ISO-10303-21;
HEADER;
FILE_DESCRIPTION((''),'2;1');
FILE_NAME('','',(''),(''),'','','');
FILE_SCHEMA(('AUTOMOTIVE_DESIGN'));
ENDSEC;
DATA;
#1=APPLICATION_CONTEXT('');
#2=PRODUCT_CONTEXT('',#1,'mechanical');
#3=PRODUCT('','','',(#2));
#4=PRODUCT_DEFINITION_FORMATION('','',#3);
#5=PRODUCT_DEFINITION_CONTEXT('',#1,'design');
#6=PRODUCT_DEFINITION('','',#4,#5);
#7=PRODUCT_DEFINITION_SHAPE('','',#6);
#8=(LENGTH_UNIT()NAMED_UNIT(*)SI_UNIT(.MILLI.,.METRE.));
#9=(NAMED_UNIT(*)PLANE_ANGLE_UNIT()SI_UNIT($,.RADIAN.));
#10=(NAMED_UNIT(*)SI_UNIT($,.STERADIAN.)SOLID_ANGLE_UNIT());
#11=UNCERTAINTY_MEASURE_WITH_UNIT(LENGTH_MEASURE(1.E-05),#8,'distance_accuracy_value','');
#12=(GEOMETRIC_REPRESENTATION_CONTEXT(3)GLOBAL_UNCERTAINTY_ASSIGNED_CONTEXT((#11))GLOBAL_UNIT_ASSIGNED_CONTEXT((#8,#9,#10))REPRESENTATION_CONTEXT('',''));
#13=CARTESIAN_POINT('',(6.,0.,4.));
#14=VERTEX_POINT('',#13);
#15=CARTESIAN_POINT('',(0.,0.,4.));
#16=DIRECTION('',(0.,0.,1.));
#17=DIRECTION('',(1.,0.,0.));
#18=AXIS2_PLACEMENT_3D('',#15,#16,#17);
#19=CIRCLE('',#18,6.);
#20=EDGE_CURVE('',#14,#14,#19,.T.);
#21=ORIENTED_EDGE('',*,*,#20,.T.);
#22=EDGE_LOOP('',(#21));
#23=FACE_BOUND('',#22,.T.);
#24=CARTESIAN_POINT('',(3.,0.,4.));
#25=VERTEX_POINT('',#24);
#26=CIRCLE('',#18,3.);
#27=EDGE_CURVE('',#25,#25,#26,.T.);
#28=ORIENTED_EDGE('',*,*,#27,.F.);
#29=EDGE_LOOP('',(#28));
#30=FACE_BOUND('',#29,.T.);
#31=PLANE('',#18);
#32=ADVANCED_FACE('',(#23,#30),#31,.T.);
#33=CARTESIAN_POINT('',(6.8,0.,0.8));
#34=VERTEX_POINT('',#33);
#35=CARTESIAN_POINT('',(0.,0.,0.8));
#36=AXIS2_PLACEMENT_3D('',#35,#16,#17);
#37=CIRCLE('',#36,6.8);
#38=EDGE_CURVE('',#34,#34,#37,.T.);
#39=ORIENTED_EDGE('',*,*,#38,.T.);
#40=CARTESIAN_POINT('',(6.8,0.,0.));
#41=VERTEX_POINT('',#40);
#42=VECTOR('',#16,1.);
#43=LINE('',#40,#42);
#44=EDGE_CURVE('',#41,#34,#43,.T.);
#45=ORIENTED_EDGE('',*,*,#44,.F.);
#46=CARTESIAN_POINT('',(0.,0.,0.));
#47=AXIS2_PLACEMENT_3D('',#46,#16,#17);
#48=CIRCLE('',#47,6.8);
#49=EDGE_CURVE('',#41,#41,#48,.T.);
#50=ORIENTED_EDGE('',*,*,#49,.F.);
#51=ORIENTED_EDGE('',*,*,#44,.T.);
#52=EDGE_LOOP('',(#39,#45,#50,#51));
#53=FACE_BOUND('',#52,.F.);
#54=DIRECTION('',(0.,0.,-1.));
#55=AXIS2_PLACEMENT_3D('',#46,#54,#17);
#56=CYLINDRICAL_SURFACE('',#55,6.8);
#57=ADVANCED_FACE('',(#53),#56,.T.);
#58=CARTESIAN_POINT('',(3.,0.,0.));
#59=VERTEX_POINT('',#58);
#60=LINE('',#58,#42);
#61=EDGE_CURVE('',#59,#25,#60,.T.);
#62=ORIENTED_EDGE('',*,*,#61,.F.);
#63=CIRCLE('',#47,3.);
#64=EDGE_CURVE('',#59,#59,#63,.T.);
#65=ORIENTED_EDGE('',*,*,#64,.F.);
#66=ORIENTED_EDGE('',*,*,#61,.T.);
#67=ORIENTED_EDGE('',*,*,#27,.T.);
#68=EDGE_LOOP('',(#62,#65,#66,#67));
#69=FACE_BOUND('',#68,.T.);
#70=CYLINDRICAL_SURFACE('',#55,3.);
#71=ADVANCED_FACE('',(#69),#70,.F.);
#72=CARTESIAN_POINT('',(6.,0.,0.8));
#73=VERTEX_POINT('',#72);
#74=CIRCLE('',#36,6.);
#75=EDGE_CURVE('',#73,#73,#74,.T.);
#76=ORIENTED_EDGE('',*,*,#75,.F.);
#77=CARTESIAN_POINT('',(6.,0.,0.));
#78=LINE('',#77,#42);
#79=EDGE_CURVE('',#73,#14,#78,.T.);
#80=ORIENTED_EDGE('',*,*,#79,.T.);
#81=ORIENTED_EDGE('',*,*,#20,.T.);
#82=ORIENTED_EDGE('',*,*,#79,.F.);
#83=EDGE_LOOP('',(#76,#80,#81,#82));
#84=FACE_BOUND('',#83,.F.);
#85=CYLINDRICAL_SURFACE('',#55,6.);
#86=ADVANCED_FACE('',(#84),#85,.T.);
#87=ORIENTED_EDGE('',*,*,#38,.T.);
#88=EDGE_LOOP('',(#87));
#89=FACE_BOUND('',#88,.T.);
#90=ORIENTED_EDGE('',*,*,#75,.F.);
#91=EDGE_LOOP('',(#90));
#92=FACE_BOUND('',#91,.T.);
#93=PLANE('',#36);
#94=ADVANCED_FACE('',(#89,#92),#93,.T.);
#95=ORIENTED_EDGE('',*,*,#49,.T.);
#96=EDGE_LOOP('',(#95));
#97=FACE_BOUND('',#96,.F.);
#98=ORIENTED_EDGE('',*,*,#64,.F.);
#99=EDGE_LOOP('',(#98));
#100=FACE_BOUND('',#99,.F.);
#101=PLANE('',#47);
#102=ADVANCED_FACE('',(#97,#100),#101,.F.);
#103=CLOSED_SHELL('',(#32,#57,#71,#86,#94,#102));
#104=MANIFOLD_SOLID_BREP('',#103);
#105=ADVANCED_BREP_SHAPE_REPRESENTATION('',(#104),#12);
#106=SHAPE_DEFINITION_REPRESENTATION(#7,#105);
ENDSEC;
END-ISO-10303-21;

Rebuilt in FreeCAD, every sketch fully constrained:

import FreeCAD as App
import Part
import Sketcher

V = App.Vector
Q = App.Units.Quantity

doc = App.newDocument("Part")
body = doc.addObject("PartDesign::Body", "Body")

sketch1 = body.newObject("Sketcher::SketchObject", "Sketch")
sketch1.AttachmentSupport = (doc.getObject("XY_Plane"), [""])
sketch1.MapMode = "FlatFace"
sketch1.addGeometry([
    Part.Circle(V(0, 0, 0), V(0, 0, 1), 6),
    Part.Circle(V(0, 0, 0), V(0, 0, 1), 3),
], False)
sketch1.addConstraint([
    Sketcher.Constraint("Coincident", 0, 3, -1, 1),
    Sketcher.Constraint("Coincident", 1, 3, -1, 1),
    Sketcher.Constraint("Diameter", 0, Q("12 mm")),
    Sketcher.Constraint("Diameter", 1, Q("6 mm")),
])
pad1 = body.newObject("PartDesign::Pad", "Pad")
pad1.Profile = sketch1
pad1.Length = 4

sketch2 = body.newObject("Sketcher::SketchObject", "Sketch001")
sketch2.AttachmentSupport = (doc.getObject("XY_Plane"), [""])
sketch2.MapMode = "FlatFace"
sketch2.addGeometry([
    Part.Circle(V(0, 0, 0), V(0, 0, 1), 7),
    Part.Circle(V(0, 0, 0), V(0, 0, 1), 6),
], False)
sketch2.addConstraint([
    Sketcher.Constraint("Coincident", 0, 3, -1, 1),
    Sketcher.Constraint("Coincident", 1, 3, -1, 1),
    Sketcher.Constraint("Diameter", 1, Q("12 mm")),
    Sketcher.Constraint("Diameter", 0, Q("13.6 mm")),
])
pad2 = body.newObject("PartDesign::Pad", "Pad001")
pad2.Profile = sketch2
pad2.Length = 0.8

doc.recompute()
